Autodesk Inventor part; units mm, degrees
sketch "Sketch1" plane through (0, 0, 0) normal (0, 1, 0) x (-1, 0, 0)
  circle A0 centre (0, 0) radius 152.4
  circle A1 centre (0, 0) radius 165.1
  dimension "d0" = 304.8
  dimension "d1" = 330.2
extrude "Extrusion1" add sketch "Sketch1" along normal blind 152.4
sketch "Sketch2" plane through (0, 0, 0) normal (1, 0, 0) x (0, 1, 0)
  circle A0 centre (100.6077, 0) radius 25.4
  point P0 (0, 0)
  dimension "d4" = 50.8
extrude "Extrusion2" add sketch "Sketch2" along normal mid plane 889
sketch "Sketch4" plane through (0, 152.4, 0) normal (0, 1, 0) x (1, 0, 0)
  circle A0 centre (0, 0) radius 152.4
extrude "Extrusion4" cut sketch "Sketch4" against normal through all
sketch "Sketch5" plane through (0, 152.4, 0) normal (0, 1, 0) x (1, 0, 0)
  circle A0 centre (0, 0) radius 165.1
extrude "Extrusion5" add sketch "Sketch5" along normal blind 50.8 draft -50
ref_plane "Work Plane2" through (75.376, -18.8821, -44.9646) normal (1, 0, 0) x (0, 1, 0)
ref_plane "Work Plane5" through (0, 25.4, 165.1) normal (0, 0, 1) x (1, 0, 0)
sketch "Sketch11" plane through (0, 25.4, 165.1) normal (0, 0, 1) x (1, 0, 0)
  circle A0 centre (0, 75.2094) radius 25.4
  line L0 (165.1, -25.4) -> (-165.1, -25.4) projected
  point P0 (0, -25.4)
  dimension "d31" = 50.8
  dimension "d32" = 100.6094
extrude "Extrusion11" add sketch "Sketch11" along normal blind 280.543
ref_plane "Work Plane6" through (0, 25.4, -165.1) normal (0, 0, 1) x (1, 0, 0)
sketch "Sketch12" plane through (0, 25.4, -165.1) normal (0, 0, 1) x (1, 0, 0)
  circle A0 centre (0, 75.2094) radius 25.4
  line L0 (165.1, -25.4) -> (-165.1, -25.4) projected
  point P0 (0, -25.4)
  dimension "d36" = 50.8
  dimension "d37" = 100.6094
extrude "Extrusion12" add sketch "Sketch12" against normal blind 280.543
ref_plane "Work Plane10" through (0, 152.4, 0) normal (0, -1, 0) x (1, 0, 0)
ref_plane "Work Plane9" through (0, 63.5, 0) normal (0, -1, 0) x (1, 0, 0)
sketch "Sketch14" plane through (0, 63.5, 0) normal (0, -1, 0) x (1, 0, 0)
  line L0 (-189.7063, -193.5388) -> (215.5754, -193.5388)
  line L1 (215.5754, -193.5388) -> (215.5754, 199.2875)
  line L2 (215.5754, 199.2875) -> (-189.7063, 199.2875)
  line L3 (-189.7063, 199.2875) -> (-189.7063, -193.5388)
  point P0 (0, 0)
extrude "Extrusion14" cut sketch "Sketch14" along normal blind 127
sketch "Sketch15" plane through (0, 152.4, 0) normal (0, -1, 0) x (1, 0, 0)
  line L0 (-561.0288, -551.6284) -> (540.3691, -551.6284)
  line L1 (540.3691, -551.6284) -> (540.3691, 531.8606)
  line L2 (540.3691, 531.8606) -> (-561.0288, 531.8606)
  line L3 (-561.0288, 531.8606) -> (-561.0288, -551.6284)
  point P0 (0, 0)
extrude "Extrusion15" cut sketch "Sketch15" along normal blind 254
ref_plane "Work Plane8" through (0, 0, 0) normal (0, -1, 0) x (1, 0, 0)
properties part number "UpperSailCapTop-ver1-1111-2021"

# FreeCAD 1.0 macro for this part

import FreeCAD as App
import Part
import Sketcher
from FreeCAD import Vector
Q = App.Units.Quantity


def add_polygon(sketch, points):
    """Adds a closed chain of lines whose ends are joined by coincident constraints."""
    first, n = sketch.GeometryCount, len(points)
    for a, b in zip(points, points[1:] + points[:1]):
        sketch.addGeometry(Part.LineSegment(App.Vector(*a, 0), App.Vector(*b, 0)), False)
    for i in range(n):
        sketch.addConstraint(Sketcher.Constraint("Coincident", first + i, 2, first + (i + 1) % n, 1))

doc = App.newDocument("Part")
params = doc.addObject("Spreadsheet::Sheet", "Params")
for row, (alias, value) in enumerate([
    ("sketch1_diameter", "13 in"),
    ("sketch1_diameter2", "12 in"),
    ("pad1_length", "6 in"),
    ("sketch2_diameter", "2 in"),
    ("pad2_length", "35 in"),
    ("sketch3_diameter", "12 in"),
    ("sketch4_diameter", "13 in"),
    ("pad3_length", "2 in"),
    ("pad3_taper", "-50 deg"),
    ("sketch5_diameter", "2 in"),
    ("pad4_length", "11.045 in"),
    ("sketch6_diameter", "2 in"),
    ("pad5_length", "11.045 in"),
    ("pocket2_length", "5 in"),
    ("pocket3_length", "10 in"),
], start=1):
    params.set(f"A{row}", alias)
    params.set(f"B{row}", "=" + value)
    params.setAlias(f"B{row}", alias)

body = doc.addObject("PartDesign::Body", "Body")
body.AllowCompound = True

# Sketch on XZ plane
sketch1 = doc.addObject("Sketcher::SketchObject", "Sketch")
body.addObject(sketch1)
sketch1.AttachmentSupport = (doc.XZ_Plane, [""])
sketch1.MapMode = "FlatFace"
sketch1.addGeometry(Part.Circle(Vector(0, 0, 0), Vector(0, 0, 1), 165.1), False)
sketch1.addGeometry(Part.Circle(Vector(0, 0, 0), Vector(0, 0, 1), 152.4), False)
sketch1.addConstraint(Sketcher.Constraint("Coincident", 0, 3, -1, 1))
sketch1.addConstraint(Sketcher.Constraint("Coincident", 1, 3, -1, 1))
sketch1.addConstraint(Sketcher.Constraint("Diameter", 0, Q("13 in")))
sketch1.addConstraint(Sketcher.Constraint("Diameter", 1, Q("12 in")))
sketch1.setExpression("Constraints[2]", "Params.sketch1_diameter")
sketch1.setExpression("Constraints[3]", "Params.sketch1_diameter2")
pad1 = doc.addObject("PartDesign::Pad", "Pad")
body.addObject(pad1)
pad1.Profile = sketch1
pad1.setExpression("Length", "Params.pad1_length")
pad1.Reversed = True

# Sketch on YZ plane
sketch2 = doc.addObject("Sketcher::SketchObject", "Sketch001")
body.addObject(sketch2)
sketch2.AttachmentSupport = (doc.YZ_Plane, [""])
sketch2.MapMode = "FlatFace"
sketch2.addGeometry(Part.Circle(Vector(100.6077, 0, 0), Vector(0, 0, 1), 25.4), False)
sketch2.addConstraint(Sketcher.Constraint("PointOnObject", 0, 3, -1))
sketch2.addConstraint(Sketcher.Constraint("Diameter", 0, Q("2 in")))
sketch2.addConstraint(Sketcher.Constraint("DistanceX", -1, 1, 0, 3, 100.6077))
sketch2.setExpression("Constraints[1]", "Params.sketch2_diameter")
pad2 = doc.addObject("PartDesign::Pad", "Pad001")
body.addObject(pad2)
pad2.Profile = sketch2
pad2.setExpression("Length", "Params.pad2_length")
pad2.Midplane = True

# Sketch on XZ plane
sketch3 = doc.addObject("Sketcher::SketchObject", "Sketch002")
body.addObject(sketch3)
sketch3.AttachmentSupport = (doc.XZ_Plane, [""])
sketch3.MapMode = "FlatFace"
sketch3.AttachmentOffset = App.Placement(Vector(0, 0, -6 * 25.4), App.Rotation())
sketch3.addGeometry(Part.Circle(Vector(0, 0, 0), Vector(0, 0, 1), 152.4), False)
sketch3.addConstraint(Sketcher.Constraint("Coincident", 0, 3, -1, 1))
sketch3.addConstraint(Sketcher.Constraint("Diameter", 0, Q("12 in")))
sketch3.setExpression("Constraints[1]", "Params.sketch3_diameter")
pocket1 = doc.addObject("PartDesign::Pocket", "Pocket")
body.addObject(pocket1)
pocket1.Profile = sketch3
pocket1.Type = "ThroughAll"
pocket1.Reversed = True

# Sketch on XZ plane
sketch4 = doc.addObject("Sketcher::SketchObject", "Sketch003")
body.addObject(sketch4)
sketch4.AttachmentSupport = (doc.XZ_Plane, [""])
sketch4.MapMode = "FlatFace"
sketch4.AttachmentOffset = App.Placement(Vector(0, 0, -6 * 25.4), App.Rotation())
sketch4.addGeometry(Part.Circle(Vector(0, 0, 0), Vector(0, 0, 1), 165.1), False)
sketch4.addConstraint(Sketcher.Constraint("Coincident", 0, 3, -1, 1))
sketch4.addConstraint(Sketcher.Constraint("Diameter", 0, Q("13 in")))
sketch4.setExpression("Constraints[1]", "Params.sketch4_diameter")
pad3 = doc.addObject("PartDesign::Pad", "Pad002")
body.addObject(pad3)
pad3.Profile = sketch4
pad3.setExpression("Length", "Params.pad3_length")
pad3.Reversed = True
pad3.setExpression("TaperAngle", "Params.pad3_taper")

# Sketch on XY plane
sketch5 = doc.addObject("Sketcher::SketchObject", "Sketch004")
body.addObject(sketch5)
sketch5.AttachmentSupport = (doc.XY_Plane, [""])
sketch5.MapMode = "FlatFace"
sketch5.AttachmentOffset = App.Placement(Vector(0, 0, 6.5 * 25.4), App.Rotation())
sketch5.addGeometry(Part.Circle(Vector(0, 100.6094, 0), Vector(0, 0, 1), 25.4), False)
sketch5.addConstraint(Sketcher.Constraint("PointOnObject", 0, 3, -2))
sketch5.addConstraint(Sketcher.Constraint("Diameter", 0, Q("2 in")))
sketch5.addConstraint(Sketcher.Constraint("DistanceY", -1, 1, 0, 3, Q("3.961 in")))
sketch5.setExpression("Constraints[1]", "Params.sketch5_diameter")
pad4 = doc.addObject("PartDesign::Pad", "Pad003")
body.addObject(pad4)
pad4.Profile = sketch5
pad4.setExpression("Length", "Params.pad4_length")

# Sketch on XY plane
sketch6 = doc.addObject("Sketcher::SketchObject", "Sketch005")
body.addObject(sketch6)
sketch6.AttachmentSupport = (doc.XY_Plane, [""])
sketch6.MapMode = "FlatFace"
sketch6.AttachmentOffset = App.Placement(Vector(0, 0, -6.5 * 25.4), App.Rotation())
sketch6.addGeometry(Part.Circle(Vector(0, 100.6094, 0), Vector(0, 0, 1), 25.4), False)
sketch6.addConstraint(Sketcher.Constraint("PointOnObject", 0, 3, -2))
sketch6.addConstraint(Sketcher.Constraint("Diameter", 0, Q("2 in")))
sketch6.addConstraint(Sketcher.Constraint("DistanceY", -1, 1, 0, 3, Q("3.961 in")))
sketch6.setExpression("Constraints[1]", "Params.sketch6_diameter")
pad5 = doc.addObject("PartDesign::Pad", "Pad004")
body.addObject(pad5)
pad5.Profile = sketch6
pad5.setExpression("Length", "Params.pad5_length")
pad5.Reversed = True

# Sketch on XZ plane
sketch7 = doc.addObject("Sketcher::SketchObject", "Sketch006")
body.addObject(sketch7)
sketch7.AttachmentSupport = (doc.XZ_Plane, [""])
sketch7.MapMode = "FlatFace"
sketch7.AttachmentOffset = App.Placement(Vector(0, 0, -2.5 * 25.4), App.Rotation())
add_polygon(sketch7, [(-189.7063, 199.2875), (-189.7063, -193.5388), (215.5754, -193.5388), (215.5754, 199.2875)])  # lines 0-3
sketch7.addConstraint(Sketcher.Constraint("Vertical", 0))
sketch7.addConstraint(Sketcher.Constraint("Horizontal", 1))
sketch7.addConstraint(Sketcher.Constraint("Vertical", 2))
sketch7.addConstraint(Sketcher.Constraint("Horizontal", 3))
sketch7.addConstraint(Sketcher.Constraint("DistanceY", 0, 2, 0, 1, Q("15.4656 in")))
sketch7.addConstraint(Sketcher.Constraint("DistanceX", 0, 2, -1, 1, Q("7.468752 in")))
sketch7.addConstraint(Sketcher.Constraint("DistanceX", 1, 1, 1, 2, 405.2817))
sketch7.addConstraint(Sketcher.Constraint("DistanceY", 0, 2, -1, 1, 193.5388))
pocket2 = doc.addObject("PartDesign::Pocket", "Pocket001")
body.addObject(pocket2)
pocket2.Profile = sketch7
pocket2.setExpression("Length", "Params.pocket2_length")
pocket2.Reversed = True

# Sketch on XZ plane
sketch8 = doc.addObject("Sketcher::SketchObject", "Sketch007")
body.addObject(sketch8)
sketch8.AttachmentSupport = (doc.XZ_Plane, [""])
sketch8.MapMode = "FlatFace"
sketch8.AttachmentOffset = App.Placement(Vector(0, 0, -6 * 25.4), App.Rotation())
add_polygon(sketch8, [(-561.0288, 531.8606), (-561.0288, -551.6284), (540.3691, -551.6284), (540.3691, 531.8606)])  # lines 0-3
sketch8.addConstraint(Sketcher.Constraint("Vertical", 0))
sketch8.addConstraint(Sketcher.Constraint("Horizontal", 1))
sketch8.addConstraint(Sketcher.Constraint("Vertical", 2))
sketch8.addConstraint(Sketcher.Constraint("Horizontal", 3))
sketch8.addConstraint(Sketcher.Constraint("DistanceX", 1, 1, 1, 2, 1101.398))
sketch8.addConstraint(Sketcher.Constraint("DistanceY", 0, 2, 0, 1, 1083.489))
sketch8.addConstraint(Sketcher.Constraint("DistanceY", -1, 1, 2, 2, Q("20.9394 in")))
sketch8.addConstraint(Sketcher.Constraint("DistanceX", 0, 2, -1, 1, 561.0288))
pocket3 = doc.addObject("PartDesign::Pocket", "Pocket002")
body.addObject(pocket3)
pocket3.Profile = sketch8
pocket3.setExpression("Length", "Params.pocket3_length")
pocket3.Reversed = True

doc.recompute()
